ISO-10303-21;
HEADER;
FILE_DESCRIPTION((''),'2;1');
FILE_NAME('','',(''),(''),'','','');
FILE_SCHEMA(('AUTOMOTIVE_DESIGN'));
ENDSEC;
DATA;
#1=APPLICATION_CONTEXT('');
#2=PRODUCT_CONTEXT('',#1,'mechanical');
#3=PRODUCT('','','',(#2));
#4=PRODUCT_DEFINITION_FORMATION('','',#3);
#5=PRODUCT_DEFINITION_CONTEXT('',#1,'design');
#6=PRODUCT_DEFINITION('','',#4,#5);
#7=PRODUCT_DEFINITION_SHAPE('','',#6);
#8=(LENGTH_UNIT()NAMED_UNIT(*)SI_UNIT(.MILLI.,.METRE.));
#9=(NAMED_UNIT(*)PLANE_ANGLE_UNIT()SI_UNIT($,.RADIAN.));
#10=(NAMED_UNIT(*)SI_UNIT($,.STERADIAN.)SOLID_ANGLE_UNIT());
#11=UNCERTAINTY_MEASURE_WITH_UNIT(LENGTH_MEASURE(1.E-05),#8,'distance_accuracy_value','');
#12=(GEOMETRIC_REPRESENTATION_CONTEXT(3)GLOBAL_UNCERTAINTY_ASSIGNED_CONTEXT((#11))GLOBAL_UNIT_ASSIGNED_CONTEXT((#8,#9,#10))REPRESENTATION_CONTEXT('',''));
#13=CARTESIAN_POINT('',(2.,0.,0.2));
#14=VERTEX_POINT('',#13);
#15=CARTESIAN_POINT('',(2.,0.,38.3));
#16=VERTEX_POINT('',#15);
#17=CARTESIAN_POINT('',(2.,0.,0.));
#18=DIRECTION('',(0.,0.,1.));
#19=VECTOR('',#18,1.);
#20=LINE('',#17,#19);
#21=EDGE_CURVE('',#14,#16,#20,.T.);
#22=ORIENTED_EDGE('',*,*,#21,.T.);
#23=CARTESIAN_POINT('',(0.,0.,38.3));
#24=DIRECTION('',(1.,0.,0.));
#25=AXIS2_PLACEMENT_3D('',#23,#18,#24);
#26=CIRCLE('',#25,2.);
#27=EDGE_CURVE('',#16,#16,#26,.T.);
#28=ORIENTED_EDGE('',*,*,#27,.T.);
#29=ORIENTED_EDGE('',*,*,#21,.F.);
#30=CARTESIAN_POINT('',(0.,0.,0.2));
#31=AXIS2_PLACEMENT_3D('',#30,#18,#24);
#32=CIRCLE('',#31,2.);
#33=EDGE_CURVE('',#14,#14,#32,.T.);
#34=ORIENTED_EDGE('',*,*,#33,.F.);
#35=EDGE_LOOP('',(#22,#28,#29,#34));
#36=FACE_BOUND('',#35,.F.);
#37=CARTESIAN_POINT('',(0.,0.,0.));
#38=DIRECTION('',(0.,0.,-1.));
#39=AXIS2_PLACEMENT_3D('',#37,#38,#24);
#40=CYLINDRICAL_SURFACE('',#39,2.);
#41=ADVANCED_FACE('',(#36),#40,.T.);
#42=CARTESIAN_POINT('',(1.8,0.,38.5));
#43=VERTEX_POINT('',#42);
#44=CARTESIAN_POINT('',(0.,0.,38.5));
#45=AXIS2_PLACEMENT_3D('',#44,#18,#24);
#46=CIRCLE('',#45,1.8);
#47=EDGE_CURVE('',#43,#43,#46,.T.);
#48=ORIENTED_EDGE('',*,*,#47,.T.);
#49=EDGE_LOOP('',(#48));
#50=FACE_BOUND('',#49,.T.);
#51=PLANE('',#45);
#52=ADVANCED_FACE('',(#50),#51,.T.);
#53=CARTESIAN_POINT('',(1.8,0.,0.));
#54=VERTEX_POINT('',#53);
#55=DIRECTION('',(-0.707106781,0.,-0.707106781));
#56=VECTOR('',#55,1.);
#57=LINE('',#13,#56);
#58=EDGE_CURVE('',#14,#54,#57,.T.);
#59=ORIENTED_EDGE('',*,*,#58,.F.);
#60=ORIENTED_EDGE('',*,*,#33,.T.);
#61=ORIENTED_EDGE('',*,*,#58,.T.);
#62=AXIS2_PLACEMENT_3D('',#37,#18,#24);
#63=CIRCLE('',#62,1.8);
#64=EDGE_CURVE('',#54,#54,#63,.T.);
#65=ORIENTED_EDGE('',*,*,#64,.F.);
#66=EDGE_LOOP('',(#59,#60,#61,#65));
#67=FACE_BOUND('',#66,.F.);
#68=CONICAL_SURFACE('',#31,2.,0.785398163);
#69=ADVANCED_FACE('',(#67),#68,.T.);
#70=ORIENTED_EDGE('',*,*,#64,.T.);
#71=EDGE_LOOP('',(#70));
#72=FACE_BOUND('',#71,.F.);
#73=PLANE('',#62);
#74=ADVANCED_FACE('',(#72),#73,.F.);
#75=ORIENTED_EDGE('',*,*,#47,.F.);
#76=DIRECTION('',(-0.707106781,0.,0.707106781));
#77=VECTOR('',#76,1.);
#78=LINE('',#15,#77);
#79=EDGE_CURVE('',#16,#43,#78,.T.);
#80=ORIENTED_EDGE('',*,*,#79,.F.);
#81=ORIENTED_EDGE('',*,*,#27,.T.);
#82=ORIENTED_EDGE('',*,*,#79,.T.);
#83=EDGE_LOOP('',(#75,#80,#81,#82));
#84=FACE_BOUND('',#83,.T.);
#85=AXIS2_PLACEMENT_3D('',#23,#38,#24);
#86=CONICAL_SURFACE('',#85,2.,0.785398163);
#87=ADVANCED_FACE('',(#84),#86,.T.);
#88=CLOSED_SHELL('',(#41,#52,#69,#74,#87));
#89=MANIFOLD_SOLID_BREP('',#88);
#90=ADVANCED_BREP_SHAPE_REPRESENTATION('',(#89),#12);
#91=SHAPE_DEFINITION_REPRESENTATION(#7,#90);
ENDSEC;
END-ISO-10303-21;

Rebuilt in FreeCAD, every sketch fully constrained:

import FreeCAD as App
import Part
import Sketcher
from FreeCAD import Vector


def edges_at(feature, points):
    """Names of the edges that pass closest to the given points."""
    edges = feature.Shape.Edges
    near = lambda p: min(range(len(edges)), key=lambda i: edges[i].distToShape(Part.Vertex(*p))[0])
    return sorted({f"Edge{near(p) + 1}" for p in points})

doc = App.newDocument("Part")
body = doc.addObject("PartDesign::Body", "Body")

# Sketch on XY plane
sketch1 = body.newObject("Sketcher::SketchObject", "Sketch")
sketch1.AttachmentSupport = (doc.getObject("XY_Plane"), [""])
sketch1.MapMode = "FlatFace"
sketch1.addGeometry(Part.Circle(Vector(0, 0, 0), Vector(0, 0, 1), 2), False)
sketch1.addConstraint(Sketcher.Constraint("Coincident", 0, 3, -1, 1))
sketch1.addConstraint(Sketcher.Constraint("Diameter", 0, 4.0))
pad1 = body.newObject("PartDesign::Pad", "Pad")
pad1.Profile = sketch1
pad1.Length = 38.5
doc.recompute()

chamfer = body.newObject("PartDesign::Chamfer", "Chamfer")
chamfer.Base = (pad1, edges_at(pad1, [(-2, 0, 38.5), (-2, 0, 0)]))
chamfer.Size = 0.2

doc.recompute()
